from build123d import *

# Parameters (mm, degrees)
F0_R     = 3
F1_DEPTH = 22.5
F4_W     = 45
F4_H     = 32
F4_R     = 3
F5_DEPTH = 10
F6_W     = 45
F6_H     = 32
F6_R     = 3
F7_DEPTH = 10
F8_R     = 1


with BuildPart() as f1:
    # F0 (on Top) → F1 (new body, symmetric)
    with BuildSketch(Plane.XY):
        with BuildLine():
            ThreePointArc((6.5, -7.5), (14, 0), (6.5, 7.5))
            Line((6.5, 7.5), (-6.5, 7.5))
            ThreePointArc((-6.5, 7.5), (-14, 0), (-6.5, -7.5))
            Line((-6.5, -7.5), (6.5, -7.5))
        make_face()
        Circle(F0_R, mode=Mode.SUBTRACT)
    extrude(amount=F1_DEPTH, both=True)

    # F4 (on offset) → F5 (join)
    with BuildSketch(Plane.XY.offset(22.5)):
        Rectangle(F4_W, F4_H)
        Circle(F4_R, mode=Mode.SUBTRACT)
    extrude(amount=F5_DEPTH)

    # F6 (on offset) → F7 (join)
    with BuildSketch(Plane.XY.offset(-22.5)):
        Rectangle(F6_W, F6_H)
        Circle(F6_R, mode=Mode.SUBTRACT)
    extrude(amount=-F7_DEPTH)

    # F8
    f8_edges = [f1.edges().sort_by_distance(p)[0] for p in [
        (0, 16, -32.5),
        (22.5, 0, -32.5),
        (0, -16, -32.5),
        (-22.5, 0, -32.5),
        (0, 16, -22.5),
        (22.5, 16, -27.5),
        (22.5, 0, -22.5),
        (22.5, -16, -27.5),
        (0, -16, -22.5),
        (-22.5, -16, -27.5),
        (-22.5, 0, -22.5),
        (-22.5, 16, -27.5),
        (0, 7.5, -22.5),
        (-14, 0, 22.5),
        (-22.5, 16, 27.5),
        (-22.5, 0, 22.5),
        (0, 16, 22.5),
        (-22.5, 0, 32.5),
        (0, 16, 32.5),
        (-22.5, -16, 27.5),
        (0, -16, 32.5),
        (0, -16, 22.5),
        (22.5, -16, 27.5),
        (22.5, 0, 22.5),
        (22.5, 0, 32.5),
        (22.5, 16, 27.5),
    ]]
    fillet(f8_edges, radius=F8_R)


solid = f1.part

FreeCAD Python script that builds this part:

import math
import FreeCAD as App
import Part
import Sketcher
from FreeCAD import Vector
Q = App.Units.Quantity


def edges_at(feature, points):
    """Names of the edges that pass closest to the given points."""
    edges = feature.Shape.Edges
    near = lambda p: min(range(len(edges)), key=lambda i: edges[i].distToShape(Part.Vertex(*p))[0])
    return sorted({f"Edge{near(p) + 1}" for p in points})

doc = App.newDocument("Part")
body = doc.addObject("PartDesign::Body", "Body")

sketch1 = body.newObject("Sketcher::SketchObject", "Sketch")
sketch1.AttachmentSupport = (doc.getObject("XY_Plane"), [""])
sketch1.MapMode = "FlatFace"
sketch1.addGeometry([
    Part.ArcOfCircle(Part.Circle(Vector(6.5, 0, 0), Vector(0, 0, 1), 7.5), math.radians(-90), math.radians(90)),
    Part.LineSegment(Vector(6.5, 7.5, 0), Vector(-6.5, 7.5, 0)),
    Part.ArcOfCircle(Part.Circle(Vector(-6.5, 0, 0), Vector(0, 0, 1), 7.5), math.radians(90), math.radians(270)),
    Part.LineSegment(Vector(-6.5, -7.5, 0), Vector(6.5, -7.5, 0)),
    Part.Circle(Vector(0, 0, 0), Vector(0, 0, 1), 3),
], False)
sketch1.addConstraint([
    Sketcher.Constraint("Tangent", 0, 2, 1, 1),
    Sketcher.Constraint("Tangent", 1, 2, 2, 1),
    Sketcher.Constraint("Tangent", 2, 2, 3, 1),
    Sketcher.Constraint("Tangent", 3, 2, 0, 1),
    Sketcher.Constraint("Horizontal", 1),
    Sketcher.Constraint("Horizontal", 3),
    Sketcher.Constraint("Coincident", 4, 3, -1, 1),
    Sketcher.Constraint("Symmetric", 0, 3, 2, 3, -1, 1),
    Sketcher.Constraint("Diameter", 4, Q("6 mm")),
    Sketcher.Constraint("Radius", 0, Q("7.5 mm")),
    Sketcher.Constraint("DistanceX", 1, 2, 1, 1, Q("13 mm")),
])
pad1 = body.newObject("PartDesign::Pad", "Pad")
pad1.Profile = sketch1
pad1.Length = 45
pad1.Midplane = True

sketch2 = body.newObject("Sketcher::SketchObject", "Sketch001")
sketch2.AttachmentSupport = (doc.getObject("XY_Plane"), [""])
sketch2.MapMode = "FlatFace"
sketch2.AttachmentOffset = App.Placement(Vector(0, 0, 22.5), App.Rotation())
sketch2.addGeometry([
    Part.LineSegment(Vector(-22.5, 16, 0), Vector(-22.5, -16, 0)),
    Part.LineSegment(Vector(-22.5, -16, 0), Vector(22.5, -16, 0)),
    Part.LineSegment(Vector(22.5, -16, 0), Vector(22.5, 16, 0)),
    Part.LineSegment(Vector(22.5, 16, 0), Vector(-22.5, 16, 0)),
    Part.Circle(Vector(0, 0, 0), Vector(0, 0, 1), 3),
], False)
sketch2.addConstraint([
    Sketcher.Constraint("Coincident", 0, 2, 1, 1),
    Sketcher.Constraint("Coincident", 1, 2, 2, 1),
    Sketcher.Constraint("Coincident", 2, 2, 3, 1),
    Sketcher.Constraint("Coincident", 3, 2, 0, 1),
    Sketcher.Constraint("Vertical", 0),
    Sketcher.Constraint("Horizontal", 1),
    Sketcher.Constraint("Vertical", 2),
    Sketcher.Constraint("Horizontal", 3),
    Sketcher.Constraint("Coincident", 4, 3, -1, 1),
    Sketcher.Constraint("Symmetric", 0, 2, 2, 2, -1, 1),
    Sketcher.Constraint("Diameter", 4, Q("6 mm")),
    Sketcher.Constraint("DistanceX", 1, 1, 1, 2, Q("45 mm")),
    Sketcher.Constraint("DistanceY", 0, 2, 0, 1, Q("32 mm")),
])
pad2 = body.newObject("PartDesign::Pad", "Pad001")
pad2.Profile = sketch2
pad2.Length = 10

sketch3 = body.newObject("Sketcher::SketchObject", "Sketch002")
sketch3.AttachmentSupport = (doc.getObject("XY_Plane"), [""])
sketch3.MapMode = "FlatFace"
sketch3.AttachmentOffset = App.Placement(Vector(0, 0, -22.5), App.Rotation())
sketch3.addGeometry([
    Part.LineSegment(Vector(-22.5, 16, 0), Vector(-22.5, -16, 0)),
    Part.LineSegment(Vector(-22.5, -16, 0), Vector(22.5, -16, 0)),
    Part.LineSegment(Vector(22.5, -16, 0), Vector(22.5, 16, 0)),
    Part.LineSegment(Vector(22.5, 16, 0), Vector(-22.5, 16, 0)),
    Part.Circle(Vector(0, 0, 0), Vector(0, 0, 1), 3),
], False)
sketch3.addConstraint([
    Sketcher.Constraint("Coincident", 0, 2, 1, 1),
    Sketcher.Constraint("Coincident", 1, 2, 2, 1),
    Sketcher.Constraint("Coincident", 2, 2, 3, 1),
    Sketcher.Constraint("Coincident", 3, 2, 0, 1),
    Sketcher.Constraint("Vertical", 0),
    Sketcher.Constraint("Horizontal", 1),
    Sketcher.Constraint("Vertical", 2),
    Sketcher.Constraint("Horizontal", 3),
    Sketcher.Constraint("Coincident", 4, 3, -1, 1),
    Sketcher.Constraint("Symmetric", 0, 2, 2, 2, -1, 1),
    Sketcher.Constraint("Diameter", 4, Q("6 mm")),
    Sketcher.Constraint("DistanceX", 1, 1, 1, 2, Q("45 mm")),
    Sketcher.Constraint("DistanceY", 0, 2, 0, 1, Q("32 mm")),
])
pad3 = body.newObject("PartDesign::Pad", "Pad002")
pad3.Profile = sketch3
pad3.Length = 10
pad3.Reversed = True
doc.recompute()

fillet = body.newObject("PartDesign::Fillet", "Fillet")
fillet.Base = (pad3, edges_at(pad3, [
    (0, 16, -32.5),
    (22.5, 0, -32.5),
    (0, -16, -32.5),
    (-22.5, 0, -32.5),
    (0, 16, -22.5),
    (22.5, 16, -27.5),
    (22.5, 0, -22.5),
    (22.5, -16, -27.5),
    (0, -16, -22.5),
    (-22.5, -16, -27.5),
    (-22.5, 0, -22.5),
    (-22.5, 16, -27.5),
    (0, 7.5, -22.5),
    (-14, 0, 22.5),
    (-22.5, 16, 27.5),
    (-22.5, 0, 22.5),
    (0, 16, 22.5),
    (-22.5, 0, 32.5),
    (0, 16, 32.5),
    (-22.5, -16, 27.5),
    (0, -16, 32.5),
    (0, -16, 22.5),
    (22.5, -16, 27.5),
    (22.5, 0, 22.5),
    (22.5, 0, 32.5),
    (22.5, 16, 27.5),
]))
fillet.Radius = 1

doc.recompute()
